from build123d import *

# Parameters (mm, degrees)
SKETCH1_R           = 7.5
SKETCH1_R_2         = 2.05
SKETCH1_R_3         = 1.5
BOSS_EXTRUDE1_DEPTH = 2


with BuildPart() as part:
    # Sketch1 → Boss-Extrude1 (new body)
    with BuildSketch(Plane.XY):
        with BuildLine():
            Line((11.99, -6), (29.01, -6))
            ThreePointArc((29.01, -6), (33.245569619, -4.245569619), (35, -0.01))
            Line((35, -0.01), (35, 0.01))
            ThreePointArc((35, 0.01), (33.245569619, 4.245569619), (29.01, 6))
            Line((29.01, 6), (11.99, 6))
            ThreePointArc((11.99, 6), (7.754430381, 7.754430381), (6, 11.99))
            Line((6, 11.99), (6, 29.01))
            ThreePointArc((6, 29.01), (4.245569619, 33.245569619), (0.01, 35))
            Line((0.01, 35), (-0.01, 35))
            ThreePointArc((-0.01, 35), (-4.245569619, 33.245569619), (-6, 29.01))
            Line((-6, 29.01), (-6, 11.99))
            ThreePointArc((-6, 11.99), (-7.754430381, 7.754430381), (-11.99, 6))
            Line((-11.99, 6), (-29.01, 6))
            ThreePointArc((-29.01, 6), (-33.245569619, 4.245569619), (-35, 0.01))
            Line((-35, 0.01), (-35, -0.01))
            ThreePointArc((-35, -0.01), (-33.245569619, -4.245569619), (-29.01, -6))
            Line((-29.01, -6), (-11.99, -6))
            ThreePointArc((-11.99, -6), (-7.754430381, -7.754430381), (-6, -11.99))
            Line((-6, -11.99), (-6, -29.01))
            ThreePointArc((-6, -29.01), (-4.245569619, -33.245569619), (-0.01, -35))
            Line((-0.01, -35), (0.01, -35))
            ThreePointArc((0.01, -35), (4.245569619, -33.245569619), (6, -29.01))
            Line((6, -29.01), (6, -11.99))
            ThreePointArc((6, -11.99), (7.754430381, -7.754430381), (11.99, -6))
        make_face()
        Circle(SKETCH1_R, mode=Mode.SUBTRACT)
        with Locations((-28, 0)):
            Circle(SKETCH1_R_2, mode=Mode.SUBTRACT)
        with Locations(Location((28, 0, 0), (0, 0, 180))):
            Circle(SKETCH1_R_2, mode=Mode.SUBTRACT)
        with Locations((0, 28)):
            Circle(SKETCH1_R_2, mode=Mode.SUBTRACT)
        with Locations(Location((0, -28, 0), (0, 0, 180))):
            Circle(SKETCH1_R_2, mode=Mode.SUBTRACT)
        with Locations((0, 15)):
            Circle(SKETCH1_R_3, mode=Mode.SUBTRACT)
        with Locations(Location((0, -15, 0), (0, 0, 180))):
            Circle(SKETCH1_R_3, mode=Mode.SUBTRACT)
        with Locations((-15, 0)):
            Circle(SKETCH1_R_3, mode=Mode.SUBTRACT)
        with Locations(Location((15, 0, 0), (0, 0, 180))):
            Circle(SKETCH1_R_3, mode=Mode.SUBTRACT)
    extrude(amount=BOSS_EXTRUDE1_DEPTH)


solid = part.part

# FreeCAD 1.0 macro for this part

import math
import FreeCAD as App
import Part
import Sketcher

doc = App.newDocument("Part")
body = doc.addObject("PartDesign::Body", "Body")

# Sketch on XY plane
sketch1 = body.newObject("Sketcher::SketchObject", "Sketch")
sketch1.AttachmentSupport = (doc.getObject("XY_Plane"), [""])
sketch1.MapMode = "FlatFace"
sketch1.addGeometry([
    Part.LineSegment(App.Vector(11.99, -6, 0), App.Vector(29.01, -6, 0)),  # 0
    Part.ArcOfCircle(Part.Circle(App.Vector(29.01, -0.01, 0), App.Vector(0, 0, 1), 5.99), math.radians(-90), math.radians(0)),  # 1
    Part.LineSegment(App.Vector(35, -0.01, 0), App.Vector(35, 0.01, 0)),  # 2
    Part.ArcOfCircle(Part.Circle(App.Vector(29.01, 0.01, 0), App.Vector(0, 0, 1), 5.99), math.radians(0), math.radians(90)),  # 3
    Part.LineSegment(App.Vector(29.01, 6, 0), App.Vector(11.99, 6, 0)),  # 4
    Part.ArcOfCircle(Part.Circle(App.Vector(11.99, 11.99, 0), App.Vector(0, 0, 1), 5.99), math.radians(-180), math.radians(-90)),  # 5
    Part.LineSegment(App.Vector(6, 11.99, 0), App.Vector(6, 29.01, 0)),  # 6
    Part.ArcOfCircle(Part.Circle(App.Vector(0.01, 29.01, 0), App.Vector(0, 0, 1), 5.99), math.radians(0), math.radians(90)),  # 7
    Part.LineSegment(App.Vector(0.01, 35, 0), App.Vector(-0.01, 35, 0)),  # 8
    Part.ArcOfCircle(Part.Circle(App.Vector(-0.01, 29.01, 0), App.Vector(0, 0, 1), 5.99), math.radians(90), math.radians(180)),  # 9
    Part.LineSegment(App.Vector(-6, 29.01, 0), App.Vector(-6, 11.99, 0)),  # 10
    Part.ArcOfCircle(Part.Circle(App.Vector(-11.99, 11.99, 0), App.Vector(0, 0, 1), 5.99), math.radians(-90), math.radians(0)),  # 11
    Part.LineSegment(App.Vector(-11.99, 6, 0), App.Vector(-29.01, 6, 0)),  # 12
    Part.ArcOfCircle(Part.Circle(App.Vector(-29.01, 0.01, 0), App.Vector(0, 0, 1), 5.99), math.radians(90), math.radians(180)),  # 13
    Part.LineSegment(App.Vector(-35, 0.01, 0), App.Vector(-35, -0.01, 0)),  # 14
    Part.ArcOfCircle(Part.Circle(App.Vector(-29.01, -0.01, 0), App.Vector(0, 0, 1), 5.99), math.radians(-180), math.radians(-90)),  # 15
    Part.LineSegment(App.Vector(-29.01, -6, 0), App.Vector(-11.99, -6, 0)),  # 16
    Part.ArcOfCircle(Part.Circle(App.Vector(-11.99, -11.99, 0), App.Vector(0, 0, 1), 5.99), math.radians(0), math.radians(90)),  # 17
    Part.LineSegment(App.Vector(-6, -11.99, 0), App.Vector(-6, -29.01, 0)),  # 18
    Part.ArcOfCircle(Part.Circle(App.Vector(-0.01, -29.01, 0), App.Vector(0, 0, 1), 5.99), math.radians(-180), math.radians(-90)),  # 19
    Part.LineSegment(App.Vector(-0.01, -35, 0), App.Vector(0.01, -35, 0)),  # 20
    Part.ArcOfCircle(Part.Circle(App.Vector(0.01, -29.01, 0), App.Vector(0, 0, 1), 5.99), math.radians(-90), math.radians(0)),  # 21
    Part.LineSegment(App.Vector(6, -29.01, 0), App.Vector(6, -11.99, 0)),  # 22
    Part.ArcOfCircle(Part.Circle(App.Vector(11.99, -11.99, 0), App.Vector(0, 0, 1), 5.99), math.radians(90), math.radians(180)),  # 23
    Part.Circle(App.Vector(0, -28, 0), App.Vector(0, 0, 1), 2.05),  # 24
    Part.Circle(App.Vector(0, -15, 0), App.Vector(0, 0, 1), 1.5),  # 25
    Part.Circle(App.Vector(-28, 0, 0), App.Vector(0, 0, 1), 2.05),  # 26
    Part.Circle(App.Vector(-15, 0, 0), App.Vector(0, 0, 1), 1.5),  # 27
    Part.Circle(App.Vector(0, 0, 0), App.Vector(0, 0, 1), 7.5),  # 28
    Part.Circle(App.Vector(15, 0, 0), App.Vector(0, 0, 1), 1.5),  # 29
    Part.Circle(App.Vector(0, 15, 0), App.Vector(0, 0, 1), 1.5),  # 30
    Part.Circle(App.Vector(28, 0, 0), App.Vector(0, 0, 1), 2.05),  # 31
    Part.Circle(App.Vector(0, 28, 0), App.Vector(0, 0, 1), 2.05),  # 32
], False)
sketch1.addConstraint([
    Sketcher.Constraint("Tangent", 0, 2, 1, 1),
    Sketcher.Constraint("Tangent", 1, 2, 2, 1),
    Sketcher.Constraint("Tangent", 2, 2, 3, 1),
    Sketcher.Constraint("Tangent", 3, 2, 4, 1),
    Sketcher.Constraint("Tangent", 4, 2, 5, 2),
    Sketcher.Constraint("Tangent", 5, 1, 6, 1),
    Sketcher.Constraint("Tangent", 6, 2, 7, 1),
    Sketcher.Constraint("Tangent", 7, 2, 8, 1),
    Sketcher.Constraint("Tangent", 8, 2, 9, 1),
    Sketcher.Constraint("Tangent", 9, 2, 10, 1),
    Sketcher.Constraint("Tangent", 10, 2, 11, 2),
    Sketcher.Constraint("Tangent", 11, 1, 12, 1),
    Sketcher.Constraint("Tangent", 12, 2, 13, 1),
    Sketcher.Constraint("Tangent", 13, 2, 14, 1),
    Sketcher.Constraint("Tangent", 14, 2, 15, 1),
    Sketcher.Constraint("Tangent", 15, 2, 16, 1),
    Sketcher.Constraint("Tangent", 16, 2, 17, 2),
    Sketcher.Constraint("Tangent", 17, 1, 18, 1),
    Sketcher.Constraint("Tangent", 18, 2, 19, 1),
    Sketcher.Constraint("Tangent", 19, 2, 20, 1),
    Sketcher.Constraint("Tangent", 20, 2, 21, 1),
    Sketcher.Constraint("Tangent", 21, 2, 22, 1),
    Sketcher.Constraint("Tangent", 22, 2, 23, 2),
    Sketcher.Constraint("Tangent", 23, 1, 0, 1),
    Sketcher.Constraint("Horizontal", 0),
    Sketcher.Constraint("Horizontal", 4),
    Sketcher.Constraint("Vertical", 6),
    Sketcher.Constraint("Vertical", 10),
    Sketcher.Constraint("Horizontal", 12),
    Sketcher.Constraint("Horizontal", 16),
    Sketcher.Constraint("Vertical", 18),
    Sketcher.Constraint("Vertical", 22),
    Sketcher.Constraint("Coincident", 28, 3, -1, 1),
    Sketcher.Constraint("Equal", 1, 3),
    Sketcher.Constraint("Equal", 3, 5),
    Sketcher.Constraint("Equal", 5, 7),
    Sketcher.Constraint("Equal", 7, 9),
    Sketcher.Constraint("Equal", 9, 11),
    Sketcher.Constraint("Equal", 11, 13),
    Sketcher.Constraint("Equal", 13, 15),
    Sketcher.Constraint("Equal", 15, 17),
    Sketcher.Constraint("Equal", 17, 19),
    Sketcher.Constraint("Equal", 19, 21),
    Sketcher.Constraint("Equal", 21, 23),
    Sketcher.Constraint("Equal", 24, 26),
    Sketcher.Constraint("Equal", 25, 27),
    Sketcher.Constraint("Equal", 27, 29),
    Sketcher.Constraint("Equal", 29, 30),
    Sketcher.Constraint("Equal", 26, 31),
    Sketcher.Constraint("Equal", 31, 32),
    Sketcher.Constraint("Symmetric", 1, 3, 13, 3, -1, 1),
    Sketcher.Constraint("Symmetric", 3, 3, 15, 3, -1, 1),
    Sketcher.Constraint("Symmetric", 7, 3, 19, 3, -1, 1),
    Sketcher.Constraint("Symmetric", 9, 3, 21, 3, -1, 1),
    Sketcher.Constraint("Symmetric", 27, 3, 29, 3, -1, 1),
    Sketcher.Constraint("Symmetric", 25, 3, 30, 3, -1, 1),
    Sketcher.Constraint("Symmetric", 26, 3, 31, 3, -1, 1),
    Sketcher.Constraint("Symmetric", 24, 3, 32, 3, -1, 1),
    Sketcher.Constraint("Symmetric", 5, 3, 11, 3, -2),
    Sketcher.Constraint("PointOnObject", 24, 3, -2),
    Sketcher.Constraint("PointOnObject", 25, 3, -2),
    Sketcher.Constraint("PointOnObject", 26, 3, -1),
    Sketcher.Constraint("PointOnObject", 27, 3, -1),
    Sketcher.Constraint("Horizontal", 15, 3, 1, 2),
    Sketcher.Constraint("Vertical", 21, 3, 7, 2),
    Sketcher.Constraint("Equal", 20, 2),
    Sketcher.Constraint("Equal", 16, 6),
    Sketcher.Constraint("Diameter", 25, 3.0),
    Sketcher.Constraint("Diameter", 28, 15.0),
    Sketcher.Constraint("Diameter", 24, 4.1),
    Sketcher.Constraint("Radius", 1, 5.99),
    Sketcher.Constraint("DistanceY", 24, 3, -1, 1, 28.0),
    Sketcher.Constraint("DistanceY", 25, 3, -1, 1, 15.0),
    Sketcher.Constraint("DistanceX", 26, 3, -1, 1, 28.0),
    Sketcher.Constraint("DistanceX", 27, 3, -1, 1, 15.0),
    Sketcher.Constraint("DistanceY", 0, 2, -1, 1, 6.0),
    Sketcher.Constraint("DistanceX", -1, 1, 1, 2, 35.0),
])
pad1 = body.newObject("PartDesign::Pad", "Pad")
pad1.Profile = sketch1
pad1.Length = 2

doc.recompute()
